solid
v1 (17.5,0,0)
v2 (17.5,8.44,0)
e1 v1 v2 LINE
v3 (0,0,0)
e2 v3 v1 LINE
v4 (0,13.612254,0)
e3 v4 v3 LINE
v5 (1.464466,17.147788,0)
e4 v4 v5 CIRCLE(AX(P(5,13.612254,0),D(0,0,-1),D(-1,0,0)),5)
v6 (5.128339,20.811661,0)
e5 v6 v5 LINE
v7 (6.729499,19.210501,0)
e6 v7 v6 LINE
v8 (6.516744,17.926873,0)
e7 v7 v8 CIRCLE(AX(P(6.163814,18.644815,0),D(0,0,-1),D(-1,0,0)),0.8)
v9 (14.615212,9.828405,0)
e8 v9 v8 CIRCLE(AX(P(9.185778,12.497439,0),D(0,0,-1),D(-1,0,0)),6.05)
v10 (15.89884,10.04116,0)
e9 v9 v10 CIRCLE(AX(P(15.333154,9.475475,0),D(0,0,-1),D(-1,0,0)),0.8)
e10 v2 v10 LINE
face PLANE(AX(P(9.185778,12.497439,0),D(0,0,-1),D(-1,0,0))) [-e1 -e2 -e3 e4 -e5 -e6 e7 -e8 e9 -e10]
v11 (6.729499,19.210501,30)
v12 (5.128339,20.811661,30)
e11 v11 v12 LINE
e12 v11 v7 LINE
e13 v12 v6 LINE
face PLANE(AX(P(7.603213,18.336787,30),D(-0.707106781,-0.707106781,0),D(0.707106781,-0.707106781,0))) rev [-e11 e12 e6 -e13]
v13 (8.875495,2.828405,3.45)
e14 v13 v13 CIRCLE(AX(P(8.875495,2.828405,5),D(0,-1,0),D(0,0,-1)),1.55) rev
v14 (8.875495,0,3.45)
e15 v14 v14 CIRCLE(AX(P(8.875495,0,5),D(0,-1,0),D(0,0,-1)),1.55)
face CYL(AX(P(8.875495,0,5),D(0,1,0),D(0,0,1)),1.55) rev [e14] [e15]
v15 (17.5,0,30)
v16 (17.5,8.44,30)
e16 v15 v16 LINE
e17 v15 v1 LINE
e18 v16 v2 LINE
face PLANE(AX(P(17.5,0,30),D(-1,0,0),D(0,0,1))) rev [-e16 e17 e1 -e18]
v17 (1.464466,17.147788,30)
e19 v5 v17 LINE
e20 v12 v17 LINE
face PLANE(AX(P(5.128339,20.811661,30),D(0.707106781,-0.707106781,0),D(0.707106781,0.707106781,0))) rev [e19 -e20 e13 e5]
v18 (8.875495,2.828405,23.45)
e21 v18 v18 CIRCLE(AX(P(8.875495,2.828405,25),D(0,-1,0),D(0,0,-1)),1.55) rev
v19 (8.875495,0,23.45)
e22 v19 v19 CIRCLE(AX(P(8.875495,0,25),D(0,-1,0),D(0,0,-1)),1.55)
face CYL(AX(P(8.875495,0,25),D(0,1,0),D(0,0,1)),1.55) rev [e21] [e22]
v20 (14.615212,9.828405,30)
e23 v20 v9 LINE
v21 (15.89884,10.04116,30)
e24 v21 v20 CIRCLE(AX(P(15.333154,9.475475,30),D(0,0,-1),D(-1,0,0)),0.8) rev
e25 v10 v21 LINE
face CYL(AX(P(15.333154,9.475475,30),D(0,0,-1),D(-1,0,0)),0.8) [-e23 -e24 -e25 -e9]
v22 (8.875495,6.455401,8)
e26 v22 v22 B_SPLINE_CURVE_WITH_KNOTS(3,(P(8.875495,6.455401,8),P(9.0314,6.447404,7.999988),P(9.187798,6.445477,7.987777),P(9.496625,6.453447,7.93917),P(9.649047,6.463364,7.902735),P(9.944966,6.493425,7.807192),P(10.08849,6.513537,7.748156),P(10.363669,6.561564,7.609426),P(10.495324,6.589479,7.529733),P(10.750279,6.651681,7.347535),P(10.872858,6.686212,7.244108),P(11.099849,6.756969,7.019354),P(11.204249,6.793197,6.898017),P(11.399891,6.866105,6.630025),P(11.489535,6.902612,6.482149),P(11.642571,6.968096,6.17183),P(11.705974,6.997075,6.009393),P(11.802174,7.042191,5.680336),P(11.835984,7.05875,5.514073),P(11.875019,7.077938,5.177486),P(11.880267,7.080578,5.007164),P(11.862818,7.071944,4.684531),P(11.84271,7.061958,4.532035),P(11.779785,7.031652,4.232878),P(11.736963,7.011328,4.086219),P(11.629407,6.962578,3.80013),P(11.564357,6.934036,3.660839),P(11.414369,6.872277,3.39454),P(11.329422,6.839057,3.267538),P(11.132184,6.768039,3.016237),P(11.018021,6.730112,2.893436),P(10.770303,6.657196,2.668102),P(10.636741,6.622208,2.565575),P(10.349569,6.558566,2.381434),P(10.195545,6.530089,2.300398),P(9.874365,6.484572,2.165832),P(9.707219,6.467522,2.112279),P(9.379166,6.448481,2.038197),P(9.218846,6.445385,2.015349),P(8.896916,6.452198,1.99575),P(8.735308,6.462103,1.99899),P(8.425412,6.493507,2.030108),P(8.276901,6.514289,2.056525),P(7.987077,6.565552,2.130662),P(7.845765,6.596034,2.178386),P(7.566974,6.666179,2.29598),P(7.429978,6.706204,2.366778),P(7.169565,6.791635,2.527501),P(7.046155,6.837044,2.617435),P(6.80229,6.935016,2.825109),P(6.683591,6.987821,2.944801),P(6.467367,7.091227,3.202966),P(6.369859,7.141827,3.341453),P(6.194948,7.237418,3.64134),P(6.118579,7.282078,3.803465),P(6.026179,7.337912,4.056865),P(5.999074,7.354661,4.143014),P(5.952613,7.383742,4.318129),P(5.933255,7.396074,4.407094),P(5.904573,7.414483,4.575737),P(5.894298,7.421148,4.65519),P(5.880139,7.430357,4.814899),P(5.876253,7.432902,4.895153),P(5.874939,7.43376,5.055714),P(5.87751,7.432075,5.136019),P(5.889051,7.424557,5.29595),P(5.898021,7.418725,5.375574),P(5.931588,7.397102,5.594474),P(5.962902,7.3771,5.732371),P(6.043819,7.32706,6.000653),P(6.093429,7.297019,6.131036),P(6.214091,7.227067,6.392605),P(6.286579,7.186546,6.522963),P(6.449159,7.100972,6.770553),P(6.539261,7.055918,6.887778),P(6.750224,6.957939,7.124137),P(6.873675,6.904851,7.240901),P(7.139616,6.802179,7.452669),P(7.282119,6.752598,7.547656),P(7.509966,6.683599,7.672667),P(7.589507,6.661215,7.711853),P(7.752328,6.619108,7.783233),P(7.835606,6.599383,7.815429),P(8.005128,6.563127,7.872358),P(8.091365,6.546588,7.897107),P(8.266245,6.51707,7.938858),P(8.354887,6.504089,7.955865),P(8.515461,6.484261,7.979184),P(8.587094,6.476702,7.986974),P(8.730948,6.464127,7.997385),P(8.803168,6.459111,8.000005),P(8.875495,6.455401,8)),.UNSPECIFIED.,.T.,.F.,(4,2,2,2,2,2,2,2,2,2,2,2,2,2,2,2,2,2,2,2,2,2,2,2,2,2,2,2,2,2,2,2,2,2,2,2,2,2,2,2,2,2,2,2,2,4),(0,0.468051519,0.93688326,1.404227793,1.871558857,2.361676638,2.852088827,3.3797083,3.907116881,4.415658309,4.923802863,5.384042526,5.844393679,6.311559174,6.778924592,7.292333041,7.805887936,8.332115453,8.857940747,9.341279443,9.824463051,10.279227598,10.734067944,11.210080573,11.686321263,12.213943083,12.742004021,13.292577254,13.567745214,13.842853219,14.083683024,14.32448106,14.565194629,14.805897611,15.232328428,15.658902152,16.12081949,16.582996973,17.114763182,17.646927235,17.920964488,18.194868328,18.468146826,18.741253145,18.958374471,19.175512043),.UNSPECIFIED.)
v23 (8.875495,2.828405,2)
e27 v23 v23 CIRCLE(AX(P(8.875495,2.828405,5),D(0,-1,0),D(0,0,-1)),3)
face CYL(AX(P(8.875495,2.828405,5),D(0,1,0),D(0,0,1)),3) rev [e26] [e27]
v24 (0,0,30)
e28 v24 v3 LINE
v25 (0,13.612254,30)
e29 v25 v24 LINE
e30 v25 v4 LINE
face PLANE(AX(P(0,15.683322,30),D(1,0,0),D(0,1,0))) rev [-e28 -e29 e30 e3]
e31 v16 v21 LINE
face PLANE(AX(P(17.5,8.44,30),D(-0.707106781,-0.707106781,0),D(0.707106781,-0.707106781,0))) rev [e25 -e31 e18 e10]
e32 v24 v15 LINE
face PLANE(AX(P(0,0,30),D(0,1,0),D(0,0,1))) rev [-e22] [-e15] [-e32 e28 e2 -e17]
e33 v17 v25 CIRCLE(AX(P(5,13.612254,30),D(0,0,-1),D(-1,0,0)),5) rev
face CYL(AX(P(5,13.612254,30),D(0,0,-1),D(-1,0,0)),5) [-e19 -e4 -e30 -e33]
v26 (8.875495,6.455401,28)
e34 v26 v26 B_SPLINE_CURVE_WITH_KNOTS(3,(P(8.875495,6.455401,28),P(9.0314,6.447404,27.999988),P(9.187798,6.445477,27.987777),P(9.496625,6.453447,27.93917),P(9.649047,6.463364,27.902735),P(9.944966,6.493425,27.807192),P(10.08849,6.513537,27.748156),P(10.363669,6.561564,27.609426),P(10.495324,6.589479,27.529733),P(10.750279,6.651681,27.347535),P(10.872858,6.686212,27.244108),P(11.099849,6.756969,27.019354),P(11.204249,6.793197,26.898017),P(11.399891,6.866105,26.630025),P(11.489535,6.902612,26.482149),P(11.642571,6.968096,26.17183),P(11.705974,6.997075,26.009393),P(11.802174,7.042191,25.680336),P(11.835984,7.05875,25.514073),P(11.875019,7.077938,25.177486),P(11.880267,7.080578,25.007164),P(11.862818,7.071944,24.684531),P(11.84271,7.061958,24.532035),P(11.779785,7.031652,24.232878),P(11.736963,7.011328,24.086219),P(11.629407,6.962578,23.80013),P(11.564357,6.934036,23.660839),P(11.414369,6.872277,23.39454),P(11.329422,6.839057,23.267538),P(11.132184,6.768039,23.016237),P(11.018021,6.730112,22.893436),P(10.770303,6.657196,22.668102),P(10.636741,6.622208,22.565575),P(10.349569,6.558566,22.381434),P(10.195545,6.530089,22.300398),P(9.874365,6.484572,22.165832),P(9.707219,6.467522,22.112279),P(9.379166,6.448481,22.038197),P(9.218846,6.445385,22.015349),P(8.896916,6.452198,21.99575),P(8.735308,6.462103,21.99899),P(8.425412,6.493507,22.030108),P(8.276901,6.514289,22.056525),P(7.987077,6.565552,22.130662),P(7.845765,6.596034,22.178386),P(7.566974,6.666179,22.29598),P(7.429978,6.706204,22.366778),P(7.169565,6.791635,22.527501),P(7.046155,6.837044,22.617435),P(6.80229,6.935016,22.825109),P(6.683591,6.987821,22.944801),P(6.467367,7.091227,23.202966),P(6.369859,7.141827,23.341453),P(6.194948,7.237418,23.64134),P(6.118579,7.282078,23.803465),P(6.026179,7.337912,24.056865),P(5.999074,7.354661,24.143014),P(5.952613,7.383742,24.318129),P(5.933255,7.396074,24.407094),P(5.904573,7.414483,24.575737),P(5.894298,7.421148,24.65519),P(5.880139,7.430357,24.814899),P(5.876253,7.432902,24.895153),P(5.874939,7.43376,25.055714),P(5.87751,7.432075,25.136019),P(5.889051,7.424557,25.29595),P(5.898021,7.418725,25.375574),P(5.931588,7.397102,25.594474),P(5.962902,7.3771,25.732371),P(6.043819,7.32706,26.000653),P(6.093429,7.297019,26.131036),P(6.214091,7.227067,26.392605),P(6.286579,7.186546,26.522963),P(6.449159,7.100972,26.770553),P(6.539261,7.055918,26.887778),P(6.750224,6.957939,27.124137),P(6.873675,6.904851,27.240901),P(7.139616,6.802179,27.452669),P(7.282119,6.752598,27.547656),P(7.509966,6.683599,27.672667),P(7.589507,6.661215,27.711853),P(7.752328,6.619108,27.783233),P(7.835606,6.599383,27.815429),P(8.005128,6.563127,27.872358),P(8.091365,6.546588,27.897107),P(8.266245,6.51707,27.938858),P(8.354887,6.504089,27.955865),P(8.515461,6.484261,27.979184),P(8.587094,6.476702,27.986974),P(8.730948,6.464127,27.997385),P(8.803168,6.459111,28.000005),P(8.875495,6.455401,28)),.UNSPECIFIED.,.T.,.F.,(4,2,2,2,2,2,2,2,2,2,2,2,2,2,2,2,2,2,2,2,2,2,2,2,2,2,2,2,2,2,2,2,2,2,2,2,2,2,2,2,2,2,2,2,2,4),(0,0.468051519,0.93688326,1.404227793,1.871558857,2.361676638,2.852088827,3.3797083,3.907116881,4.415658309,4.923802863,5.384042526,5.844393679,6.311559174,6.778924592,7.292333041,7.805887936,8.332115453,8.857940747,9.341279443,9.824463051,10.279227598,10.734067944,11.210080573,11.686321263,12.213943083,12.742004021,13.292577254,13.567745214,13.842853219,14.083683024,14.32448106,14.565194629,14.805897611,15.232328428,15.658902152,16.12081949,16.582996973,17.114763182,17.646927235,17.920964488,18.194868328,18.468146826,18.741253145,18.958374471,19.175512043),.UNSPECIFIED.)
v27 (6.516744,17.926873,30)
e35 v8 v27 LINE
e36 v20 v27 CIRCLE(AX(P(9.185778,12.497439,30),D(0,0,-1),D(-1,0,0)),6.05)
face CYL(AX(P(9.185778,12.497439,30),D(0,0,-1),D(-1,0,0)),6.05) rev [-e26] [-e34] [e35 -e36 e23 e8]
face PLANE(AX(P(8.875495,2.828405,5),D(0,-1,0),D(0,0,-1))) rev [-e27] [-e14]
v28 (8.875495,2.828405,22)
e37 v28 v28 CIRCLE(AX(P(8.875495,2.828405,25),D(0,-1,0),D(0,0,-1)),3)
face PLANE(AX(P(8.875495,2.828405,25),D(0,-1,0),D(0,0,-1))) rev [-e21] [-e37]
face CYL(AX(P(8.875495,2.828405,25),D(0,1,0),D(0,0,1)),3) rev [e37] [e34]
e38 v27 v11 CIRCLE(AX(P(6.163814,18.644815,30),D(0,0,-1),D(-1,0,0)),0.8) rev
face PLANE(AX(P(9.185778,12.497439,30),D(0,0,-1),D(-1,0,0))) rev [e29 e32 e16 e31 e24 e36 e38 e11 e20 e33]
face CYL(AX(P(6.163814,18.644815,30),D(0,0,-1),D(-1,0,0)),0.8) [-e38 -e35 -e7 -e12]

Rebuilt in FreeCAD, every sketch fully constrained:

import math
import FreeCAD as App
import Part
import Sketcher
from FreeCAD import Vector
Q = App.Units.Quantity


def edges_at(feature, points):
    """Names of the edges that pass closest to the given points."""
    edges = feature.Shape.Edges
    near = lambda p: min(range(len(edges)), key=lambda i: edges[i].distToShape(Part.Vertex(*p))[0])
    return sorted({f"Edge{near(p) + 1}" for p in points})

doc = App.newDocument("Part")
params = doc.addObject("Spreadsheet::Sheet", "Params")
for row, (alias, value) in enumerate([
    ("sketch1_radius", "6.05 mm"),
    ("sketch1_width", "17.5 mm"),
    ("sketch1_length", "3.5 mm"),
    ("sketch1_height", "8.44 mm"),
    ("pad1_length", "30 mm"),
    ("fillet_radius", "0.8 mm"),
    ("sketch2_diameter", "6 mm"),
    ("pocket1_length", "7 mm"),
    ("sketch3_diameter", "3.1 mm"),
    ("fillet2_radius", "5 mm"),
], start=1):
    params.set(f"A{row}", alias)
    params.set(f"B{row}", "=" + value)
    params.setAlias(f"B{row}", alias)

body = doc.addObject("PartDesign::Body", "Body")

# Sketch on XY plane
sketch1 = body.newObject("Sketcher::SketchObject", "Sketch")
sketch1.AttachmentSupport = (doc.getObject("XY_Plane"), [""])
sketch1.MapMode = "FlatFace"
sketch1.addGeometry([
    Part.LineSegment(Vector(0, 0, 0), Vector(17.5, 0, 0)),  # 0
    Part.LineSegment(Vector(17.5, 0, 0), Vector(17.5, 8.4, 0)),  # 1
    Part.LineSegment(Vector(17.5, 8.4, 0), Vector(15, 10.9, 0)),  # 2
    Part.ArcOfCircle(Part.Circle(Vector(9.2, 12.5, 0), Vector(0, 0, 1), 6), math.radians(105), math.radians(345)),  # 3
    Part.LineSegment(Vector(7.6, 18.3, 0), Vector(5.1, 20.8, 0)),  # 4
    Part.LineSegment(Vector(5.1, 20.8, 0), Vector(0, 15.7, 0)),  # 5
    Part.LineSegment(Vector(0, 15.7, 0), Vector(0, 0, 0)),  # 6
], False)
sketch1.addConstraint([
    Sketcher.Constraint("Coincident", 0, 2, 1, 1),
    Sketcher.Constraint("Coincident", 1, 2, 2, 1),
    Sketcher.Constraint("Coincident", 2, 2, 3, 2),
    Sketcher.Constraint("Coincident", 3, 1, 4, 1),
    Sketcher.Constraint("Coincident", 4, 2, 5, 1),
    Sketcher.Constraint("Coincident", 5, 2, 6, 1),
    Sketcher.Constraint("Coincident", 6, 2, 0, 1),
    Sketcher.Constraint("Horizontal", 0),
    Sketcher.Constraint("Vertical", 1),
    Sketcher.Constraint("Vertical", 6),
    Sketcher.Constraint("Coincident", 6, 2, -1, 1),
    Sketcher.Constraint("Parallel", 2, 4),
    Sketcher.Constraint("Perpendicular", 4, 5),
    Sketcher.Constraint("Equal", 2, 4),
    Sketcher.Constraint("Angle", 2, Q("135 deg")),
    Sketcher.Constraint("Radius", 3, Q("6.05 mm")),
    Sketcher.Constraint("DistanceX", 0, 1, 0, 2, Q("17.5 mm")),
    Sketcher.Constraint("Distance", 2, Q("3.5 mm")),
    Sketcher.Constraint("DistanceY", 1, 1, 1, 2, Q("8.44 mm")),
    Sketcher.Constraint("DistanceY", 6, 2, 6, 1, Q("15.683322 mm")),
    Sketcher.Constraint("DistanceX", -1, 1, 3, 3, Q("9.185778 mm")),
])
sketch1.setExpression("Constraints[15]", "Params.sketch1_radius")
sketch1.setExpression("Constraints[16]", "Params.sketch1_width")
sketch1.setExpression("Constraints[17]", "Params.sketch1_length")
sketch1.setExpression("Constraints[18]", "Params.sketch1_height")
pad1 = body.newObject("PartDesign::Pad", "Pad")
pad1.Profile = sketch1
pad1.setExpression("Length", "Params.pad1_length")
doc.recompute()

fillet = body.newObject("PartDesign::Fillet", "Fillet")
fillet.Base = (pad1, edges_at(pad1, [(7.603, 18.337, 15), (15.025, 10.915, 15)]))
fillet.setExpression("Radius", "Params.fillet_radius")

# Sketch on XZ plane
sketch2 = body.newObject("Sketcher::SketchObject", "Sketch001")
sketch2.AttachmentSupport = (doc.getObject("XZ_Plane"), [""])
sketch2.MapMode = "FlatFace"
sketch2.AttachmentOffset = App.Placement(Vector(0, 0, -9.828405), App.Rotation())
sketch2.addGeometry([
    Part.Circle(Vector(8.9, 5, 0), Vector(0, 0, 1), 3),
    Part.Circle(Vector(8.9, 25, 0), Vector(0, 0, 1), 3),
], False)
sketch2.addConstraint([
    Sketcher.Constraint("Equal", 0, 1),
    Sketcher.Constraint("Vertical", 0, 3, 1, 3),
    Sketcher.Constraint("Diameter", 0, Q("6 mm")),
    Sketcher.Constraint("DistanceY", -1, 1, 0, 3, Q("5 mm")),
    Sketcher.Constraint("DistanceY", -1, 1, 1, 3, Q("25 mm")),
    Sketcher.Constraint("DistanceX", -1, 1, 0, 3, Q("8.875495 mm")),
])
sketch2.setExpression("Constraints[2]", "Params.sketch2_diameter")
pocket1 = body.newObject("PartDesign::Pocket", "Pocket")
pocket1.Profile = sketch2
pocket1.setExpression("Length", "Params.pocket1_length")
pocket1.Reversed = True

# Sketch on XZ plane
sketch3 = body.newObject("Sketcher::SketchObject", "Sketch002")
sketch3.AttachmentSupport = (doc.getObject("XZ_Plane"), [""])
sketch3.MapMode = "FlatFace"
sketch3.AttachmentOffset = App.Placement(Vector(0, 0, -9.828405), App.Rotation())
sketch3.addGeometry([
    Part.Circle(Vector(8.9, 5, 0), Vector(0, 0, 1), 1.6),
    Part.Circle(Vector(8.9, 25, 0), Vector(0, 0, 1), 1.6),
], False)
sketch3.addConstraint([
    Sketcher.Constraint("Equal", 0, 1),
    Sketcher.Constraint("Vertical", 0, 3, 1, 3),
    Sketcher.Constraint("Diameter", 0, Q("3.1 mm")),
    Sketcher.Constraint("DistanceY", -1, 1, 0, 3, Q("5 mm")),
    Sketcher.Constraint("DistanceY", -1, 1, 1, 3, Q("25 mm")),
    Sketcher.Constraint("DistanceX", -1, 1, 0, 3, Q("8.875495 mm")),
])
sketch3.setExpression("Constraints[2]", "Params.sketch3_diameter")
pocket2 = body.newObject("PartDesign::Pocket", "Pocket001")
pocket2.Profile = sketch3
pocket2.Type = "ThroughAll"
pocket2.Reversed = True
doc.recompute()

fillet2 = body.newObject("PartDesign::Fillet", "Fillet001")
fillet2.Base = (pocket2, edges_at(pocket2, [(0, 15.683, 15)]))
fillet2.setExpression("Radius", "Params.fillet2_radius")

doc.recompute()
